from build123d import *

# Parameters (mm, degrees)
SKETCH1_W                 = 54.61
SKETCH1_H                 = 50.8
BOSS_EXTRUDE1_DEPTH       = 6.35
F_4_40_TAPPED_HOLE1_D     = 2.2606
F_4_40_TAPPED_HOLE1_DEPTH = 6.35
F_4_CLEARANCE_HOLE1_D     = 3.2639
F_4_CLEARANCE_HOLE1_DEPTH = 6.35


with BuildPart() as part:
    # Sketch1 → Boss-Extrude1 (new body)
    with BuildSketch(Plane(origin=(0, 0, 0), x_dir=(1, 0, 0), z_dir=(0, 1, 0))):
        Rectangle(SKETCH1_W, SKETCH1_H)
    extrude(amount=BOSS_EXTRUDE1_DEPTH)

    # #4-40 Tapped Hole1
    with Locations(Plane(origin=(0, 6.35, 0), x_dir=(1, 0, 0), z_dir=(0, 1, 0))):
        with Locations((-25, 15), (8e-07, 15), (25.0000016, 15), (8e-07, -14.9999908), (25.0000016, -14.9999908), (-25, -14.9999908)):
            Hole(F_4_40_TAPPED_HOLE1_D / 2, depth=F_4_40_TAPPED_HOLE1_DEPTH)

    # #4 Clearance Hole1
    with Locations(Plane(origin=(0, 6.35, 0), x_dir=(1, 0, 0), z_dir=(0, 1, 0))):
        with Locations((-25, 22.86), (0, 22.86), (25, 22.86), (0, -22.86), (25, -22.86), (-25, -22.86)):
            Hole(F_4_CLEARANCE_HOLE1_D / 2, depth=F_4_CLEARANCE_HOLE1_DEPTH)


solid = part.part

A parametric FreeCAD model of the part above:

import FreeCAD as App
import Part
import Sketcher
Q = App.Units.Quantity

doc = App.newDocument("Part")
body = doc.addObject("PartDesign::Body", "Body")

sketch1 = body.newObject("Sketcher::SketchObject", "Sketch")
sketch1.AttachmentSupport = (doc.getObject("XZ_Plane"), [""])
sketch1.MapMode = "FlatFace"
sketch1.addGeometry([
    Part.LineSegment(App.Vector(-27, -25, 0), App.Vector(-27, 25, 0)),
    Part.LineSegment(App.Vector(-27, 25, 0), App.Vector(27, 25, 0)),
    Part.LineSegment(App.Vector(27, 25, 0), App.Vector(27, -25, 0)),
    Part.LineSegment(App.Vector(27, -25, 0), App.Vector(-27, -25, 0)),
], False)
sketch1.addConstraint([
    Sketcher.Constraint("Coincident", 0, 2, 1, 1),
    Sketcher.Constraint("Coincident", 1, 2, 2, 1),
    Sketcher.Constraint("Coincident", 2, 2, 3, 1),
    Sketcher.Constraint("Coincident", 3, 2, 0, 1),
    Sketcher.Constraint("Vertical", 0),
    Sketcher.Constraint("Horizontal", 1),
    Sketcher.Constraint("Vertical", 2),
    Sketcher.Constraint("Horizontal", 3),
    Sketcher.Constraint("Symmetric", 0, 2, 2, 2, -1, 1),
    Sketcher.Constraint("DistanceY", 0, 1, 0, 2, Q("2 in")),
    Sketcher.Constraint("DistanceX", 1, 1, 1, 2, Q("2.15 in")),
])
pad1 = body.newObject("PartDesign::Pad", "Pad")
pad1.Profile = sketch1
pad1.Length = Q("0.25 in")
pad1.Reversed = True

sketch2 = body.newObject("Sketcher::SketchObject", "Sketch001")
sketch2.AttachmentSupport = (doc.getObject("XZ_Plane"), [""])
sketch2.MapMode = "FlatFace"
sketch2.AttachmentOffset = App.Placement(App.Vector(0, 0, -0.25 * 25.4), App.Rotation())
sketch2.addGeometry([
    Part.Circle(App.Vector(-25, -15, 0), App.Vector(0, 0, 1), 1.1),
    Part.Circle(App.Vector(0, -15, 0), App.Vector(0, 0, 1), 1.1),
    Part.Circle(App.Vector(25, -15, 0), App.Vector(0, 0, 1), 1.1),
    Part.Circle(App.Vector(0, 15, 0), App.Vector(0, 0, 1), 1.1),
    Part.Circle(App.Vector(25, 15, 0), App.Vector(0, 0, 1), 1.1),
    Part.Circle(App.Vector(-25, 15, 0), App.Vector(0, 0, 1), 1.1),
], False)
sketch2.addConstraint([
    Sketcher.Constraint("Equal", 0, 1),
    Sketcher.Constraint("Equal", 1, 2),
    Sketcher.Constraint("Equal", 2, 3),
    Sketcher.Constraint("Equal", 3, 4),
    Sketcher.Constraint("Equal", 4, 5),
    Sketcher.Constraint("Symmetric", 1, 3, 3, 3, -1, 1),
    Sketcher.Constraint("Symmetric", 0, 3, 4, 3, -1, 1),
    Sketcher.Constraint("Symmetric", 2, 3, 5, 3, -1, 1),
    Sketcher.Constraint("Symmetric", 0, 3, 2, 3, -2),
    Sketcher.Constraint("PointOnObject", 1, 3, -2),
    Sketcher.Constraint("Horizontal", 0, 3, 1, 3),
    Sketcher.Constraint("Diameter", 0, Q("0.089 in")),
    Sketcher.Constraint("DistanceX", 0, 3, -1, 1, Q("25 mm")),
    Sketcher.Constraint("DistanceY", 0, 3, -1, 1, Q("15 mm")),
])
doc.recompute()
hole = body.newObject("PartDesign::Hole", "Hole")
hole.Profile = sketch2
hole.ThreadType = "None"
hole.Diameter = Q("0.089 in")
hole.DepthType = "Dimension"
hole.Depth = Q("0.25 in")
hole.DrillPoint = "Flat"
hole.Reversed = True

sketch3 = body.newObject("Sketcher::SketchObject", "Sketch002")
sketch3.AttachmentSupport = (doc.getObject("XZ_Plane"), [""])
sketch3.MapMode = "FlatFace"
sketch3.AttachmentOffset = App.Placement(App.Vector(0, 0, -0.25 * 25.4), App.Rotation())
sketch3.addGeometry([
    Part.Circle(App.Vector(-25, -22.9, 0), App.Vector(0, 0, 1), 1.6),
    Part.Circle(App.Vector(0, -22.9, 0), App.Vector(0, 0, 1), 1.6),
    Part.Circle(App.Vector(25, -22.9, 0), App.Vector(0, 0, 1), 1.6),
    Part.Circle(App.Vector(0, 22.9, 0), App.Vector(0, 0, 1), 1.6),
    Part.Circle(App.Vector(25, 22.9, 0), App.Vector(0, 0, 1), 1.6),
    Part.Circle(App.Vector(-25, 22.9, 0), App.Vector(0, 0, 1), 1.6),
], False)
sketch3.addConstraint([
    Sketcher.Constraint("Equal", 0, 1),
    Sketcher.Constraint("Equal", 1, 2),
    Sketcher.Constraint("Equal", 2, 3),
    Sketcher.Constraint("Equal", 3, 4),
    Sketcher.Constraint("Equal", 4, 5),
    Sketcher.Constraint("Symmetric", 1, 3, 3, 3, -1, 1),
    Sketcher.Constraint("Symmetric", 0, 3, 4, 3, -1, 1),
    Sketcher.Constraint("Symmetric", 2, 3, 5, 3, -1, 1),
    Sketcher.Constraint("Symmetric", 0, 3, 2, 3, -2),
    Sketcher.Constraint("PointOnObject", 1, 3, -2),
    Sketcher.Constraint("Horizontal", 0, 3, 1, 3),
    Sketcher.Constraint("Diameter", 0, Q("0.1285 in")),
    Sketcher.Constraint("DistanceY", 0, 3, -1, 1, Q("0.9 in")),
    Sketcher.Constraint("DistanceX", 0, 3, -1, 1, Q("25 mm")),
])
doc.recompute()
hole2 = body.newObject("PartDesign::Hole", "Hole001")
hole2.Profile = sketch3
hole2.ThreadType = "None"
hole2.Diameter = Q("0.1285 in")
hole2.DepthType = "Dimension"
hole2.Depth = Q("0.25 in")
hole2.DrillPoint = "Flat"
hole2.Reversed = True

doc.recompute()
